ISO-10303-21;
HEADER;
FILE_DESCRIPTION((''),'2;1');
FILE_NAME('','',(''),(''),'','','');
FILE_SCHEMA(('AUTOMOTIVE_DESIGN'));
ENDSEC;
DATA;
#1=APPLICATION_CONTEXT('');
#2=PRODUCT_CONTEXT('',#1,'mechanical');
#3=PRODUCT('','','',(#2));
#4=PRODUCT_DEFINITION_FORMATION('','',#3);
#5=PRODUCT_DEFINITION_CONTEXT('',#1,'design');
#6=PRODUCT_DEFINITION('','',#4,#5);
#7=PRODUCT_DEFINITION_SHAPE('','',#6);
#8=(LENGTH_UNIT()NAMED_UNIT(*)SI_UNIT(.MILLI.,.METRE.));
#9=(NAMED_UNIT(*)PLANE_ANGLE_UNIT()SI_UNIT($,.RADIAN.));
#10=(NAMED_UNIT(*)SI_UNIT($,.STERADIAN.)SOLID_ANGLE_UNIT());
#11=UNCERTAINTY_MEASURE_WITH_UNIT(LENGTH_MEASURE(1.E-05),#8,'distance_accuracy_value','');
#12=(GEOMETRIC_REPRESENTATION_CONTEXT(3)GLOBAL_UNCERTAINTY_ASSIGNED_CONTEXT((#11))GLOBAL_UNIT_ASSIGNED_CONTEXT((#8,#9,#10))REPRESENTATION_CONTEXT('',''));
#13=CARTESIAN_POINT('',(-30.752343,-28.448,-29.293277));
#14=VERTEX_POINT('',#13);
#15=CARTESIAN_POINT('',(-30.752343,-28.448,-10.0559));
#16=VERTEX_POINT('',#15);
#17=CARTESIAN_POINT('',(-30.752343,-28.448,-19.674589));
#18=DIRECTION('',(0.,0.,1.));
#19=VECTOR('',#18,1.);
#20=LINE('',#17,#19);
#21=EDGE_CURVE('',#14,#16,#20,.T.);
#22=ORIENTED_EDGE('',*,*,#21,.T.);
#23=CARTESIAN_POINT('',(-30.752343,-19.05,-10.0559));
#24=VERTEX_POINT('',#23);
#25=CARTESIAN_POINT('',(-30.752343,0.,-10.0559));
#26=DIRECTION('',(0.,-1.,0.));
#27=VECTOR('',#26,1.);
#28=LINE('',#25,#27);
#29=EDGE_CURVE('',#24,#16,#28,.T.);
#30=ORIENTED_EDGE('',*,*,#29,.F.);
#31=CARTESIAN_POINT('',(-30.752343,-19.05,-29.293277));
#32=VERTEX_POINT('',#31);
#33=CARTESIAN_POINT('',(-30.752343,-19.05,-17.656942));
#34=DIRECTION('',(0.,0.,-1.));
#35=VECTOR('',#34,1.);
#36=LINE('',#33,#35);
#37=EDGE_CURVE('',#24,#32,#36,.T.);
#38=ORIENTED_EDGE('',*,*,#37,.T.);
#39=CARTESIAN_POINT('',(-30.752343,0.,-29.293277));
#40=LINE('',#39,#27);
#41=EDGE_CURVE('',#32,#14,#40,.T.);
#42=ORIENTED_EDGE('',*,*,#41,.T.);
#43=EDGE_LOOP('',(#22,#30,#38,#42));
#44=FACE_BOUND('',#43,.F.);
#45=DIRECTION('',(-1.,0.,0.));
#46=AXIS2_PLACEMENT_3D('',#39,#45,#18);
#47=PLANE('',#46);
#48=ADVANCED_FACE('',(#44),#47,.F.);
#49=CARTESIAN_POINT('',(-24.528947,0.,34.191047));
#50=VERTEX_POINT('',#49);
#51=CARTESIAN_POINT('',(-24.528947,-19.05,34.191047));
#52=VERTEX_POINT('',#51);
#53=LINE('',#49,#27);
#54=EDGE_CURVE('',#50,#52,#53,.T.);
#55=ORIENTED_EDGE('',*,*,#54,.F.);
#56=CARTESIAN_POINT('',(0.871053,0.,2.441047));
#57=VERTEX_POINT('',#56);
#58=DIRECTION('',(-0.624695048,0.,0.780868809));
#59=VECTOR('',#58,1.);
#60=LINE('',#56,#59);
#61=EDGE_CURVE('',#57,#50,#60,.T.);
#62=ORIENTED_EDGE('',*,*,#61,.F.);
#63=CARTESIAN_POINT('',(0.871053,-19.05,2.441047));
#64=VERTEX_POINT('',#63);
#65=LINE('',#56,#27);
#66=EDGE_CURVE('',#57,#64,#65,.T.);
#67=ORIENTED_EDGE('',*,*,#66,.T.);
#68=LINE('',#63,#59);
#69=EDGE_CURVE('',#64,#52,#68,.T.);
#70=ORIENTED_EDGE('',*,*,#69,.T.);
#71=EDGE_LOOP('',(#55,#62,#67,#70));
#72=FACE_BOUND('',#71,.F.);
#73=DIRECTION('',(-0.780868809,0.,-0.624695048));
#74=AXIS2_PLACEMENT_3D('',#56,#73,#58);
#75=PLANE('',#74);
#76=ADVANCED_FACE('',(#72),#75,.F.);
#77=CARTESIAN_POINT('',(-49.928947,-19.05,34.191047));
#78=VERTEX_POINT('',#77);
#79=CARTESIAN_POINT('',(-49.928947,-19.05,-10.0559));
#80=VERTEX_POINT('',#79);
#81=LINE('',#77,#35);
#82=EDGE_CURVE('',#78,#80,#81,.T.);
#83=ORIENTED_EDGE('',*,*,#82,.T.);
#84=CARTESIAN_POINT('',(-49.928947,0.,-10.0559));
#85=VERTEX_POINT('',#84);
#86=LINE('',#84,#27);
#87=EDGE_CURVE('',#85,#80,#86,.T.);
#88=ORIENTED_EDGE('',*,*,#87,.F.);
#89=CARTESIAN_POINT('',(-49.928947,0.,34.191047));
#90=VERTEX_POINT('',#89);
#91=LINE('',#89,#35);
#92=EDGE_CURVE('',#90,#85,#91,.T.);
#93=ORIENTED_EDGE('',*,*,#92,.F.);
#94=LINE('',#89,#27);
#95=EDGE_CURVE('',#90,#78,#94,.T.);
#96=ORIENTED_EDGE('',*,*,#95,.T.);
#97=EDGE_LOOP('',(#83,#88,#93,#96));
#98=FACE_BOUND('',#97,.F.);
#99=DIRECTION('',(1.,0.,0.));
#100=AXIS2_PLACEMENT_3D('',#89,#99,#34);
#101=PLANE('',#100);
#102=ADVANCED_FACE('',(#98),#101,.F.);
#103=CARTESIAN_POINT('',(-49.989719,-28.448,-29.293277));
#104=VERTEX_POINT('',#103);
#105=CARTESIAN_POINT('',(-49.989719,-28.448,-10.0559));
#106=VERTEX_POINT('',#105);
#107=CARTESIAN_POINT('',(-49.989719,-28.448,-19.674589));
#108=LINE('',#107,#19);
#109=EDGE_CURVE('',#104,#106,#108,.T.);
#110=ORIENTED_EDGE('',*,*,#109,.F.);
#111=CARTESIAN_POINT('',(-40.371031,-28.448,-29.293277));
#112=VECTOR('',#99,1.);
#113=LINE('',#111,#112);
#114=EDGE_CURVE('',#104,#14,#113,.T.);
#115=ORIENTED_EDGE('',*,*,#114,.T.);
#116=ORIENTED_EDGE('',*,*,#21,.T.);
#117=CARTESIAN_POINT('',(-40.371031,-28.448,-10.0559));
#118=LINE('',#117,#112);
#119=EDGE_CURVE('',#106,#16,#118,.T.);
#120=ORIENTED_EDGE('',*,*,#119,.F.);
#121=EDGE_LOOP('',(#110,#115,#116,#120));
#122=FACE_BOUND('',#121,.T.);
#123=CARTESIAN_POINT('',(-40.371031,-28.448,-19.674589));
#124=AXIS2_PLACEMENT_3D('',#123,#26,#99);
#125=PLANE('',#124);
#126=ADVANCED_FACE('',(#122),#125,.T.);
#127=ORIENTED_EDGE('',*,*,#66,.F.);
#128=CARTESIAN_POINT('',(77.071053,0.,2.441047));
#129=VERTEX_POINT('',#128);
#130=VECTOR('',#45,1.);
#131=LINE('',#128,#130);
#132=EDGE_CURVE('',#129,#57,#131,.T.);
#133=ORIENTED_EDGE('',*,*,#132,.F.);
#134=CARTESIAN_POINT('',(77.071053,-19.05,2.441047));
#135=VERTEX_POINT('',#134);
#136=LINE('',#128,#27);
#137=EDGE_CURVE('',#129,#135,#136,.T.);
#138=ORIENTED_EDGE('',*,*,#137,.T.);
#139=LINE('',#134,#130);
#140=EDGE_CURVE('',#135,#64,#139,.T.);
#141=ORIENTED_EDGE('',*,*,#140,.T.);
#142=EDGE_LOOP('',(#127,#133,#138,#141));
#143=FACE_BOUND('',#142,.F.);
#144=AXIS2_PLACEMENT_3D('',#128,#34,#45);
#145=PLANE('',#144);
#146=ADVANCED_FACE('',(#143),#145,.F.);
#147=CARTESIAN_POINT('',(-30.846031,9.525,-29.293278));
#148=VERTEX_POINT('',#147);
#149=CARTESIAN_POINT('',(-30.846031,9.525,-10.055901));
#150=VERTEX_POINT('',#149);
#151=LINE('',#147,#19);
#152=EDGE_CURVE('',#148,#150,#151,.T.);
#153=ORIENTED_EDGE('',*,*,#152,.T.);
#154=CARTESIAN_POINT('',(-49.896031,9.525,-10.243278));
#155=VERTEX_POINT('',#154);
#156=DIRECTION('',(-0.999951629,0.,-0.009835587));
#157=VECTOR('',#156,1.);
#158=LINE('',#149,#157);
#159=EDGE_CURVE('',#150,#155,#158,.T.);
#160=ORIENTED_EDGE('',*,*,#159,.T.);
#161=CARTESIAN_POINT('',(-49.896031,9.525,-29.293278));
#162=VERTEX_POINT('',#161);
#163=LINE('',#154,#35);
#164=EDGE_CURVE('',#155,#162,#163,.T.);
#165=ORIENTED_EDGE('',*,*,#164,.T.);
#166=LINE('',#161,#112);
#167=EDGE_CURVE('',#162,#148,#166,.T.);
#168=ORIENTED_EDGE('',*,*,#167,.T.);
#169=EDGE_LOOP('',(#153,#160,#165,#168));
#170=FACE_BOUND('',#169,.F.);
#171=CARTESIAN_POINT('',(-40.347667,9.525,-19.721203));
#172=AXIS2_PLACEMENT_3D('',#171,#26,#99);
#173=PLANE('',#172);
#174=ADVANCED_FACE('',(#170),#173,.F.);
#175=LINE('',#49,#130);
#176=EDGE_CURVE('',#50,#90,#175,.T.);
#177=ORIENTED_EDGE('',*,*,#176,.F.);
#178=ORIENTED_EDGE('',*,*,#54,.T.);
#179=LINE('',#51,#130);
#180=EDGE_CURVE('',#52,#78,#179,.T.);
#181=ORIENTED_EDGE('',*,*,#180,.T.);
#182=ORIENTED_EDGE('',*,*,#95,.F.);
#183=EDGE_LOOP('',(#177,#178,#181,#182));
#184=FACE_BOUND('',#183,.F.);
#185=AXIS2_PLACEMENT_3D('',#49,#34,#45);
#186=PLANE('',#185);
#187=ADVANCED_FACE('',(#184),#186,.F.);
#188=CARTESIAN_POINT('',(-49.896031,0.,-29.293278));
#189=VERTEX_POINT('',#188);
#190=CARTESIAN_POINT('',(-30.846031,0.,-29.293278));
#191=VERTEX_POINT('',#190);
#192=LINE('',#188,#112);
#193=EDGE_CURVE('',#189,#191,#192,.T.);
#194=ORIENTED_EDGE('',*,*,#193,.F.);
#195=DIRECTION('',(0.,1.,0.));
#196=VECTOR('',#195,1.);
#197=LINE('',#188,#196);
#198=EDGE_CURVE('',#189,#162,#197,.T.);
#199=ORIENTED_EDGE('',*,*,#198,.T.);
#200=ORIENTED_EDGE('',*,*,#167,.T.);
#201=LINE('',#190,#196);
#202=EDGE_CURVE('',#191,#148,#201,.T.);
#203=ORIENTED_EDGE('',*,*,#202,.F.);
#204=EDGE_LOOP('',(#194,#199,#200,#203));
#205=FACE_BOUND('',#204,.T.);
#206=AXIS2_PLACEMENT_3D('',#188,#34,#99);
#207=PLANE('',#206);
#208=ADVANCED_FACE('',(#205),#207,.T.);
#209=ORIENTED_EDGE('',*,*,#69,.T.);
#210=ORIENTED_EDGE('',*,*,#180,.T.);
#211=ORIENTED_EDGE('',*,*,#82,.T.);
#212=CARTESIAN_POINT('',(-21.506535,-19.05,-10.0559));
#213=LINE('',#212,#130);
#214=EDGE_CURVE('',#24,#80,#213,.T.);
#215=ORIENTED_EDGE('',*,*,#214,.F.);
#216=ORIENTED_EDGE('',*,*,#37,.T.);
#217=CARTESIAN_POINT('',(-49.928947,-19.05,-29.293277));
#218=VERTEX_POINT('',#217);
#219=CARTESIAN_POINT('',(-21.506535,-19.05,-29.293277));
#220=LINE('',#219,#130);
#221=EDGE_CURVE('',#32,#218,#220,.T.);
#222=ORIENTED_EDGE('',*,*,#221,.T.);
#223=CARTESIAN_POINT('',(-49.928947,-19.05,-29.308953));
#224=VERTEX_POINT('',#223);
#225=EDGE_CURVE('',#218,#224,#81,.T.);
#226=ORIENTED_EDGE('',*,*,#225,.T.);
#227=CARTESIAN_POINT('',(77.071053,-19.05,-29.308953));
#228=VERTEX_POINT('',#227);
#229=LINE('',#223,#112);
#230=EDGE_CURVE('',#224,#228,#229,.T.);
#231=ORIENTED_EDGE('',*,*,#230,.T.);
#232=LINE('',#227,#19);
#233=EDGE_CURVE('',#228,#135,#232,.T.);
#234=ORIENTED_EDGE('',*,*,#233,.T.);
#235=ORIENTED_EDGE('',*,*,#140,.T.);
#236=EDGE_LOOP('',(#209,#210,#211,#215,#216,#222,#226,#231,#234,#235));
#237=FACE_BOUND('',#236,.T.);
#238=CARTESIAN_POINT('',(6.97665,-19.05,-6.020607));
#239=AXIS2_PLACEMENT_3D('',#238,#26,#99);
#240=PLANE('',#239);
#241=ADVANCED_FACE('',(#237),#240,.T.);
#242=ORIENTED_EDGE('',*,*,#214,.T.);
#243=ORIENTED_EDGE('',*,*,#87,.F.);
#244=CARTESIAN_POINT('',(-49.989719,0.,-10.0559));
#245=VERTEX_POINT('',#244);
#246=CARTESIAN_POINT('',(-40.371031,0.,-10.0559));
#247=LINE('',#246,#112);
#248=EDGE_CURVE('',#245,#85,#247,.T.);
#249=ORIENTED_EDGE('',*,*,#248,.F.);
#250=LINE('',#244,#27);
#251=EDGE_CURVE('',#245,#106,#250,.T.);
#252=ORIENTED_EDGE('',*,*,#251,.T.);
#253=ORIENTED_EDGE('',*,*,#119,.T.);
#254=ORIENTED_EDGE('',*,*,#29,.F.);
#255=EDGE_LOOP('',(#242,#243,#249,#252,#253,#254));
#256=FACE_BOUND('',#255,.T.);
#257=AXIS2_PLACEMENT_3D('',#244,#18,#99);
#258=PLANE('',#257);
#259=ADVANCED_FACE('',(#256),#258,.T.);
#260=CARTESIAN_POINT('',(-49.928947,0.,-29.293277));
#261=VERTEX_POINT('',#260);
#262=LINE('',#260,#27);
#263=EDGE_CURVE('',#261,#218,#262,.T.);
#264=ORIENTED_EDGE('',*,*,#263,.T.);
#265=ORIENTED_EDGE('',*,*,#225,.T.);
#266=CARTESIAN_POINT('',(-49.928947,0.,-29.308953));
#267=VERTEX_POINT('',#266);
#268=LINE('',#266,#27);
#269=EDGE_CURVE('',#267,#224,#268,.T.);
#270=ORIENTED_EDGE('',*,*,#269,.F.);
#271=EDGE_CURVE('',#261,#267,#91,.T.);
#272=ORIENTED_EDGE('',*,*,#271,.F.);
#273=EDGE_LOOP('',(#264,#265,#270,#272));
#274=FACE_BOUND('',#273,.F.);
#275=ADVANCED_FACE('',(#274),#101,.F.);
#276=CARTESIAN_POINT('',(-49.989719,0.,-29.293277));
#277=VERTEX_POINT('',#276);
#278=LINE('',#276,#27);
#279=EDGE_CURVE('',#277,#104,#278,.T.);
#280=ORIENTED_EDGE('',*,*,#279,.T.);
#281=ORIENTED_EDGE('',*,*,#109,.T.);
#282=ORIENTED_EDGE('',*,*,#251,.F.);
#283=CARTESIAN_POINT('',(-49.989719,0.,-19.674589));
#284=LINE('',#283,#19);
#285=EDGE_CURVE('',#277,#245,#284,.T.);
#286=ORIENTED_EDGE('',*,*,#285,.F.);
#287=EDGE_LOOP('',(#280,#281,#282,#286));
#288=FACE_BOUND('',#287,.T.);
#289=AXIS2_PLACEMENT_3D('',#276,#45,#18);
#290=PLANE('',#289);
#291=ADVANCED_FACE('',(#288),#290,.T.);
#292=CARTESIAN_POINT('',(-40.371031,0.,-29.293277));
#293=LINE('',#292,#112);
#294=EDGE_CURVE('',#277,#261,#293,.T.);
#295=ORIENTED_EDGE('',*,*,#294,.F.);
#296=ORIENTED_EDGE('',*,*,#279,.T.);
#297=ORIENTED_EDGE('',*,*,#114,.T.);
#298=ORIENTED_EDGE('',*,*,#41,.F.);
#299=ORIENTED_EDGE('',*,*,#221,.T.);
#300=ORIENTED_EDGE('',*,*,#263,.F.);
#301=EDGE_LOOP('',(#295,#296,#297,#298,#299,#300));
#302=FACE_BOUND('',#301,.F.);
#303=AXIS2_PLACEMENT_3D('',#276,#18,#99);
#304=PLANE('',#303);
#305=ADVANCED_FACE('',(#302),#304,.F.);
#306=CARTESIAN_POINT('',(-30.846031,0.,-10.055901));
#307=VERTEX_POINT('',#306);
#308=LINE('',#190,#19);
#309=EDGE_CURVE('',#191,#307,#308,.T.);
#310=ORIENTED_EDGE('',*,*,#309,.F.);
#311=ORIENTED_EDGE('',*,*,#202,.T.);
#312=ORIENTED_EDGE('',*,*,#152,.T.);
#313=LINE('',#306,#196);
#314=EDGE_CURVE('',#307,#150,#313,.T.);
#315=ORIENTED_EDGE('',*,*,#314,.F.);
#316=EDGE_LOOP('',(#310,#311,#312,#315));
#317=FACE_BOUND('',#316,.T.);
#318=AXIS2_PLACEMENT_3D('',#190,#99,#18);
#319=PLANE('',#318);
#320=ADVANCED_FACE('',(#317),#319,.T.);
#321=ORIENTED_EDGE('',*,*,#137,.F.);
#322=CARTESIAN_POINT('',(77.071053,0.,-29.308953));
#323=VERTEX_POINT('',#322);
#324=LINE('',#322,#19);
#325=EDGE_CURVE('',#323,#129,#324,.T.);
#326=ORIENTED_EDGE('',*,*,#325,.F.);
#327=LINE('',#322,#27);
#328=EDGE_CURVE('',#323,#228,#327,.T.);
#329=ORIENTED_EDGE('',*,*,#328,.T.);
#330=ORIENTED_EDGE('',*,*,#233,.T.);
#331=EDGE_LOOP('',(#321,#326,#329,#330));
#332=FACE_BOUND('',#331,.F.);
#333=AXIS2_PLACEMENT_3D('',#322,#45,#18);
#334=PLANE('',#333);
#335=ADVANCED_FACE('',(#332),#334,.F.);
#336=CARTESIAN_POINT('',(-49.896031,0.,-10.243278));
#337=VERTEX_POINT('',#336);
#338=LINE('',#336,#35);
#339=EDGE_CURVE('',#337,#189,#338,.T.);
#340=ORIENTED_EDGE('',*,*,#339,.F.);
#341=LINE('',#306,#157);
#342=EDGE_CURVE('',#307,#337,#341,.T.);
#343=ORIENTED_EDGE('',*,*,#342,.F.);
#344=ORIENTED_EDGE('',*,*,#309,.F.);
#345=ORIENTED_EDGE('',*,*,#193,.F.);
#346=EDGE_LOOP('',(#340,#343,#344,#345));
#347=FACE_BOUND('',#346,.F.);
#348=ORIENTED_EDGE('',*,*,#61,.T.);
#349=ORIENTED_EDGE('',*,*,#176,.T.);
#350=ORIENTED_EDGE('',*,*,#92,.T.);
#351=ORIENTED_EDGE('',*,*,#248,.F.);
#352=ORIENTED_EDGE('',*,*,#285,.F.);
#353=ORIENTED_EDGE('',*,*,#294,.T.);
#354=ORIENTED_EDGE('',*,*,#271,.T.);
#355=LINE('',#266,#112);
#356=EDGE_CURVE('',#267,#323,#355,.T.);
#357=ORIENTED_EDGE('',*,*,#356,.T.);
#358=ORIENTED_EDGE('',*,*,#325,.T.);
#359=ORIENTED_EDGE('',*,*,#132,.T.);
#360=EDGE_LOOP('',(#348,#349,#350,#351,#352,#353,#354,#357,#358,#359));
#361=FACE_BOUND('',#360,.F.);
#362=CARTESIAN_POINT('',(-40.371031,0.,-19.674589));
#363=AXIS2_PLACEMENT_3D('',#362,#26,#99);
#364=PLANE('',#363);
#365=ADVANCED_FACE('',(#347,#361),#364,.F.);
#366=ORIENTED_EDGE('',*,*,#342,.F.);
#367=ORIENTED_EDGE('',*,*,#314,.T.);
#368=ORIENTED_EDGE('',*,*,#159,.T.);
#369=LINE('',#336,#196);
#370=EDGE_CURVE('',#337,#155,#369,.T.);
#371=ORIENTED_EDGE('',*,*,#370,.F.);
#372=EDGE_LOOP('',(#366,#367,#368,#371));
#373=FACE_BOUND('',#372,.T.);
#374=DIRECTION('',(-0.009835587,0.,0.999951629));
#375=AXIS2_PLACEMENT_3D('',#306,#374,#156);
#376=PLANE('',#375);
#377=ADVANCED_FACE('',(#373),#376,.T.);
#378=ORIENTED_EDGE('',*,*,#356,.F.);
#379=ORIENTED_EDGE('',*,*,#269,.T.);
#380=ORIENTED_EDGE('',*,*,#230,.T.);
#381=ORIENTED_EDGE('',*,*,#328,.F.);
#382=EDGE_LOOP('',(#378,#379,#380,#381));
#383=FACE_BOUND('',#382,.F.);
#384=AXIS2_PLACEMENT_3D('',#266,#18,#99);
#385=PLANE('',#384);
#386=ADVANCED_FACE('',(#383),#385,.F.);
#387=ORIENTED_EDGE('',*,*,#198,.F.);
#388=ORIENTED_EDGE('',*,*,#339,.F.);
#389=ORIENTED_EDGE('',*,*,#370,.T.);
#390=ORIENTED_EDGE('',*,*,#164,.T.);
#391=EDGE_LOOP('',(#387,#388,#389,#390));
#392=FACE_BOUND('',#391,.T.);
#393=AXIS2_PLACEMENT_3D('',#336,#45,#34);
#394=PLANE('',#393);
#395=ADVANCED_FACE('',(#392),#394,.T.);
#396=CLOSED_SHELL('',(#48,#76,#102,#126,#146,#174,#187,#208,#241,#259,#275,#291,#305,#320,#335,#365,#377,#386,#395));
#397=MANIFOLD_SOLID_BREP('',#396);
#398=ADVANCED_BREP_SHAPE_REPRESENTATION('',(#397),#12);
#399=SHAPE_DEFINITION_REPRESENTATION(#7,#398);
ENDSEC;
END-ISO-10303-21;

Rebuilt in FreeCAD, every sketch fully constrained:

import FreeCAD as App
import Part
import Sketcher
Q = App.Units.Quantity

doc = App.newDocument("Part")
body = doc.addObject("PartDesign::Body", "Body")

# Sketch on XZ plane
sketch1 = body.newObject("Sketcher::SketchObject", "Sketch")
sketch1.AttachmentSupport = (doc.getObject("XZ_Plane"), [""])
sketch1.MapMode = "FlatFace"
sketch1.addGeometry([
    Part.LineSegment(App.Vector(-25, 34, 0), App.Vector(-50, 34, 0)),  # 0
    Part.LineSegment(App.Vector(-50, 34, 0), App.Vector(-50, -29, 0)),  # 1
    Part.LineSegment(App.Vector(-50, -29, 0), App.Vector(77, -29, 0)),  # 2
    Part.LineSegment(App.Vector(77, -29, 0), App.Vector(77, 2, 0)),  # 3
    Part.LineSegment(App.Vector(77, 2, 0), App.Vector(1, 2, 0)),  # 4
    Part.LineSegment(App.Vector(1, 2, 0), App.Vector(-25, 34, 0)),  # 5
], False)
sketch1.addConstraint([
    Sketcher.Constraint("Coincident", 0, 2, 1, 1),
    Sketcher.Constraint("Coincident", 1, 2, 2, 1),
    Sketcher.Constraint("Coincident", 2, 2, 3, 1),
    Sketcher.Constraint("Coincident", 3, 2, 4, 1),
    Sketcher.Constraint("Coincident", 4, 2, 5, 1),
    Sketcher.Constraint("Coincident", 5, 2, 0, 1),
    Sketcher.Constraint("Horizontal", 0),
    Sketcher.Constraint("Vertical", 1),
    Sketcher.Constraint("Horizontal", 2),
    Sketcher.Constraint("Vertical", 3),
    Sketcher.Constraint("Horizontal", 4),
    Sketcher.Constraint("DistanceX", 0, 2, 0, 1, Q("1 in")),
    Sketcher.Constraint("DistanceX", 2, 1, 2, 2, Q("5 in")),
    Sketcher.Constraint("DistanceX", 4, 2, 4, 1, Q("3 in")),
    Sketcher.Constraint("DistanceY", 1, 2, 1, 1, Q("2.5 in")),
    Sketcher.Constraint("DistanceY", 3, 1, 3, 2, Q("1.25 in")),
    Sketcher.Constraint("DistanceX", 0, 2, -1, 1, Q("49.928947 mm")),
    Sketcher.Constraint("DistanceY", -1, 1, 0, 2, Q("34.191047 mm")),
])
pad1 = body.newObject("PartDesign::Pad", "Pad")
pad1.Profile = sketch1
pad1.Length = Q("0.75 in")

# Sketch on XZ plane
sketch2 = body.newObject("Sketcher::SketchObject", "Sketch001")
sketch2.AttachmentSupport = (doc.getObject("XZ_Plane"), [""])
sketch2.MapMode = "FlatFace"
sketch2.addGeometry([
    Part.LineSegment(App.Vector(-49.896031, -10.243278, 0), App.Vector(-49.896031, -29.293278, 0)),
    Part.LineSegment(App.Vector(-49.896031, -29.293278, 0), App.Vector(-30.846031, -29.293278, 0)),
    Part.LineSegment(App.Vector(-30.846031, -29.293278, 0), App.Vector(-30.846031, -10.055901, 0)),
    Part.LineSegment(App.Vector(-30.846031, -10.055901, 0), App.Vector(-49.896031, -10.243278, 0)),
], False)
sketch2.addConstraint([
    Sketcher.Constraint("Coincident", 0, 2, 1, 1),
    Sketcher.Constraint("Coincident", 1, 2, 2, 1),
    Sketcher.Constraint("Coincident", 2, 2, 3, 1),
    Sketcher.Constraint("Coincident", 3, 2, 0, 1),
    Sketcher.Constraint("Vertical", 0),
    Sketcher.Constraint("Horizontal", 1),
    Sketcher.Constraint("Vertical", 2),
    Sketcher.Constraint("Equal", 1, 0),
    Sketcher.Constraint("DistanceX", 1, 1, 1, 2, Q("0.75 in")),
    Sketcher.Constraint("DistanceY", 2, 2, -1, 1, Q("10.055901 mm")),
    Sketcher.Constraint("Distance", 3, Q("19.050922 mm")),
    Sketcher.Constraint("DistanceX", 0, 2, -1, 1, Q("49.896031 mm")),
])
pad2 = body.newObject("PartDesign::Pad", "Pad001")
pad2.Profile = sketch2
pad2.Length = Q("0.375 in")
pad2.Reversed = True

# Sketch on XZ plane
sketch3 = body.newObject("Sketcher::SketchObject", "Sketch002")
sketch3.AttachmentSupport = (doc.getObject("XZ_Plane"), [""])
sketch3.MapMode = "FlatFace"
sketch3.addGeometry([
    Part.LineSegment(App.Vector(-50, -10, 0), App.Vector(-50, -29, 0)),
    Part.LineSegment(App.Vector(-50, -29, 0), App.Vector(-31, -29, 0)),
    Part.LineSegment(App.Vector(-31, -29, 0), App.Vector(-31, -10, 0)),
    Part.LineSegment(App.Vector(-31, -10, 0), App.Vector(-50, -10, 0)),
], False)
sketch3.addConstraint([
    Sketcher.Constraint("Coincident", 0, 2, 1, 1),
    Sketcher.Constraint("Coincident", 1, 2, 2, 1),
    Sketcher.Constraint("Coincident", 2, 2, 3, 1),
    Sketcher.Constraint("Coincident", 3, 2, 0, 1),
    Sketcher.Constraint("Vertical", 0),
    Sketcher.Constraint("Horizontal", 1),
    Sketcher.Constraint("Vertical", 2),
    Sketcher.Constraint("Horizontal", 3),
    Sketcher.Constraint("Equal", 3, 0),
    Sketcher.Constraint("DistanceY", 2, 2, -1, 1, Q("10.0559 mm")),
    Sketcher.Constraint("DistanceX", 1, 1, 1, 2, Q("19.237377 mm")),
    Sketcher.Constraint("DistanceX", 0, 2, -1, 1, Q("49.989719 mm")),
])
pad3 = body.newObject("PartDesign::Pad", "Pad002")
pad3.Profile = sketch3
pad3.Length = Q("1.12 in")

doc.recompute()
